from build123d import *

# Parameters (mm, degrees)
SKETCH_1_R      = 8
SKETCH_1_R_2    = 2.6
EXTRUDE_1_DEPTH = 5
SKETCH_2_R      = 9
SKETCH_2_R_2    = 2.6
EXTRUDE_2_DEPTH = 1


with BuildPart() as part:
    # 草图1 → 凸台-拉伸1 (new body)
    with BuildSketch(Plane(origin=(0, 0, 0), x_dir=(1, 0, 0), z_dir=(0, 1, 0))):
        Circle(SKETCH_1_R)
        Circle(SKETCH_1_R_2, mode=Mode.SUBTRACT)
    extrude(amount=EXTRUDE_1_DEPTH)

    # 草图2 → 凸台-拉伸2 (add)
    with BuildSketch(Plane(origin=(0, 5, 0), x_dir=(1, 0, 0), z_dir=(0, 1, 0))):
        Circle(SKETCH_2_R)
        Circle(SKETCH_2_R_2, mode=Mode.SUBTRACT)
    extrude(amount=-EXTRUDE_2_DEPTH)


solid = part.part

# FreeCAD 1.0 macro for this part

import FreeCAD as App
import Part
import Sketcher
Q = App.Units.Quantity

doc = App.newDocument("Part")
body = doc.addObject("PartDesign::Body", "Body")

# Sketch on XZ plane
sketch1 = doc.addObject("Sketcher::SketchObject", "Sketch")
body.addObject(sketch1)
sketch1.AttachmentSupport = (doc.XZ_Plane, [""])
sketch1.MapMode = "FlatFace"
sketch1.addGeometry(Part.Circle(App.Vector(0, 0, 0), App.Vector(0, 0, 1), 8), False)
sketch1.addGeometry(Part.Circle(App.Vector(0, 0, 0), App.Vector(0, 0, 1), 2.6), False)
sketch1.addConstraint(Sketcher.Constraint("Coincident", 0, 3, -1, 1))
sketch1.addConstraint(Sketcher.Constraint("Coincident", 1, 3, -1, 1))
sketch1.addConstraint(Sketcher.Constraint("Diameter", 0, Q("16 mm")))
sketch1.addConstraint(Sketcher.Constraint("Diameter", 1, Q("5.2 mm")))
pad1 = doc.addObject("PartDesign::Pad", "Pad")
body.addObject(pad1)
pad1.Profile = sketch1
pad1.Length = 5
pad1.Reversed = True

# Sketch on XZ plane
sketch2 = doc.addObject("Sketcher::SketchObject", "Sketch001")
body.addObject(sketch2)
sketch2.AttachmentSupport = (doc.XZ_Plane, [""])
sketch2.MapMode = "FlatFace"
sketch2.AttachmentOffset = App.Placement(App.Vector(0, 0, -5), App.Rotation())
sketch2.addGeometry(Part.Circle(App.Vector(0, 0, 0), App.Vector(0, 0, 1), 9), False)
sketch2.addGeometry(Part.Circle(App.Vector(0, 0, 0), App.Vector(0, 0, 1), 2.6), False)
sketch2.addConstraint(Sketcher.Constraint("Coincident", 0, 3, -1, 1))
sketch2.addConstraint(Sketcher.Constraint("Coincident", 1, 3, -1, 1))
sketch2.addConstraint(Sketcher.Constraint("Diameter", 0, Q("18 mm")))
sketch2.addConstraint(Sketcher.Constraint("Diameter", 1, Q("5.2 mm")))
pad2 = doc.addObject("PartDesign::Pad", "Pad001")
body.addObject(pad2)
pad2.Profile = sketch2
pad2.Length = 1

doc.recompute()
